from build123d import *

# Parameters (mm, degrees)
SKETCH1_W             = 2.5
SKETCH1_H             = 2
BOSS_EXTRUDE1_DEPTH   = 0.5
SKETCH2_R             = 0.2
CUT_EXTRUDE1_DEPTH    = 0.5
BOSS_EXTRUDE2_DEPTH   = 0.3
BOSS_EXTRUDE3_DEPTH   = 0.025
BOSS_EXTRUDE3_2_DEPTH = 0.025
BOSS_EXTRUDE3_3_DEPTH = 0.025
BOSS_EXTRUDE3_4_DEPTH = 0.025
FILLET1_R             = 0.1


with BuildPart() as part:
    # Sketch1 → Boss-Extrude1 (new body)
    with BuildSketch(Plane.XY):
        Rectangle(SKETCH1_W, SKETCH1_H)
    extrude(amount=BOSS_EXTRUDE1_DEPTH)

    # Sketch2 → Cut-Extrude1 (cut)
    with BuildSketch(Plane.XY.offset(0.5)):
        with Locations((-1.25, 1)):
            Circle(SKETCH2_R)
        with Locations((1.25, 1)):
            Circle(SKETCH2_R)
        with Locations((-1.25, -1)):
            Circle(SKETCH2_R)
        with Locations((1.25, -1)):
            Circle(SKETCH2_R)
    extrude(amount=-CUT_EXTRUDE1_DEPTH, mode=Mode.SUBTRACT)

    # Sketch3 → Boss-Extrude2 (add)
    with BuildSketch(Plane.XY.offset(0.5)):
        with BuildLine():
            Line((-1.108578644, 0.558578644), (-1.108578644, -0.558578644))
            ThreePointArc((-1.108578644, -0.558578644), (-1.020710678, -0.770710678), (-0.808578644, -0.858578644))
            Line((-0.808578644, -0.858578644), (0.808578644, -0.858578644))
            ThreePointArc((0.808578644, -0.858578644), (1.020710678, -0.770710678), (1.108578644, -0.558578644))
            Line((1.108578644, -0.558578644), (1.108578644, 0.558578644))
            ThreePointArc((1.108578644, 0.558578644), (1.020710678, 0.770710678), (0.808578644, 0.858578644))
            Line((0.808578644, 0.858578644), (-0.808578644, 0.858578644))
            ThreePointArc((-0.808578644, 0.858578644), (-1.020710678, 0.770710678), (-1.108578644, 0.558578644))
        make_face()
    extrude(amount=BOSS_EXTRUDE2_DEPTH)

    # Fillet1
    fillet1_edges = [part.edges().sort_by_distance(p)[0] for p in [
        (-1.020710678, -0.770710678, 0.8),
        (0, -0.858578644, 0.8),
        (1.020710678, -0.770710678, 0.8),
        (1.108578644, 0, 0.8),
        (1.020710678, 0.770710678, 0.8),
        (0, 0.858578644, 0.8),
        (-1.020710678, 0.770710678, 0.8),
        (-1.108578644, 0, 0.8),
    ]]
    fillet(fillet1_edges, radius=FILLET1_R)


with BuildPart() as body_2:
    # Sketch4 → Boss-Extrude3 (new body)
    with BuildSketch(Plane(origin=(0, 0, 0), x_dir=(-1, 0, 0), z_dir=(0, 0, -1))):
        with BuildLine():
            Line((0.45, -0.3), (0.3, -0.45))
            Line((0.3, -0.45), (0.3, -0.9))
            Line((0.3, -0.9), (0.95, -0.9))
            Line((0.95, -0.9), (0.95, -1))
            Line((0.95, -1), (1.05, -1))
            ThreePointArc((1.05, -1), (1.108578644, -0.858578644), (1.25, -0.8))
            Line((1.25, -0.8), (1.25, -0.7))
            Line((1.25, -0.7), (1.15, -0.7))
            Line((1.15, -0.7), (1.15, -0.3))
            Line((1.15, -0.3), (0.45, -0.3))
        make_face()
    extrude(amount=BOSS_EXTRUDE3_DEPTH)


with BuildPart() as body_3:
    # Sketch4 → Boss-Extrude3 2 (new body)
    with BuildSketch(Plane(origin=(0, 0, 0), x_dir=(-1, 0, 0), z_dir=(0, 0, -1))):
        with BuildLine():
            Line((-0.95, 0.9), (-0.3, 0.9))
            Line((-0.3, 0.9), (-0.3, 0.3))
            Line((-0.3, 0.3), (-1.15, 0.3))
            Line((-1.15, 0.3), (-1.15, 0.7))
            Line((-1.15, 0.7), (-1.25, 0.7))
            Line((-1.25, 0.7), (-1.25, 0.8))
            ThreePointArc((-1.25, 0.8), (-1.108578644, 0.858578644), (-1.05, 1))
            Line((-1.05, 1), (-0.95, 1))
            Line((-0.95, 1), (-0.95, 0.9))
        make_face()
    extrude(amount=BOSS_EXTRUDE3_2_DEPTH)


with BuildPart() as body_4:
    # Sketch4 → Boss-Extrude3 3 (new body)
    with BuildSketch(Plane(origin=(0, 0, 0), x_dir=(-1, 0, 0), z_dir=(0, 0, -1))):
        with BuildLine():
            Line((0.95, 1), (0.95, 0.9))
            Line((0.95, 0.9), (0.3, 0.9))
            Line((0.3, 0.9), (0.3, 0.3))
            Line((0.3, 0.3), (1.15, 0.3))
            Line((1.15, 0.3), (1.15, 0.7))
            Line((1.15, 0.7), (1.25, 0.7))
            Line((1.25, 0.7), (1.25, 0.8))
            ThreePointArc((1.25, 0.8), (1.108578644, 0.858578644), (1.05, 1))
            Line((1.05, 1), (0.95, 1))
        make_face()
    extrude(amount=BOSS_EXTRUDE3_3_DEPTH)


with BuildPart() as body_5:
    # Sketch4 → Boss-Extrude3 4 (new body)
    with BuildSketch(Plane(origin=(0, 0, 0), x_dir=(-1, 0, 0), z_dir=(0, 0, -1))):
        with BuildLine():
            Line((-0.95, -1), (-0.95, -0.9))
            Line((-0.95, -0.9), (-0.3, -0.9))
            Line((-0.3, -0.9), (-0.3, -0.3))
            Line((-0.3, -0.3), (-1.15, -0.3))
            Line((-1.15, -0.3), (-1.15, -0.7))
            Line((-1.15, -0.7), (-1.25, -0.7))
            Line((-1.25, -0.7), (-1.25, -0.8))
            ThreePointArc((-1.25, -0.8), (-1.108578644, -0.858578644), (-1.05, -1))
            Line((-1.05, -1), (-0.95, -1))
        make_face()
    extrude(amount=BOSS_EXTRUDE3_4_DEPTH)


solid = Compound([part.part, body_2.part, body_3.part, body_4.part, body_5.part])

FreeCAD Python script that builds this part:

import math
import FreeCAD as App
import Part
import Sketcher

V = App.Vector
Q = App.Units.Quantity


def edges_at(feature, points):
    """Names of the edges that pass closest to the given points."""
    edges = feature.Shape.Edges
    near = lambda p: min(range(len(edges)), key=lambda i: edges[i].distToShape(Part.Vertex(*p))[0])
    return sorted({f"Edge{near(p) + 1}" for p in points})

doc = App.newDocument("Part")
body = doc.addObject("PartDesign::Body", "Body")

# Sketch on XY plane
sketch1 = body.newObject("Sketcher::SketchObject", "Sketch")
sketch1.AttachmentSupport = (doc.getObject("XY_Plane"), [""])
sketch1.MapMode = "FlatFace"
sketch1.addGeometry([
    Part.LineSegment(V(-1.2, 1, 0), V(-1.2, -1, 0)),
    Part.LineSegment(V(-1.2, -1, 0), V(1.2, -1, 0)),
    Part.LineSegment(V(1.2, -1, 0), V(1.2, 1, 0)),
    Part.LineSegment(V(1.2, 1, 0), V(-1.2, 1, 0)),
], False)
sketch1.addConstraint([
    Sketcher.Constraint("Coincident", 0, 2, 1, 1),
    Sketcher.Constraint("Coincident", 1, 2, 2, 1),
    Sketcher.Constraint("Coincident", 2, 2, 3, 1),
    Sketcher.Constraint("Coincident", 3, 2, 0, 1),
    Sketcher.Constraint("Vertical", 0),
    Sketcher.Constraint("Horizontal", 1),
    Sketcher.Constraint("Vertical", 2),
    Sketcher.Constraint("Horizontal", 3),
    Sketcher.Constraint("Symmetric", 0, 2, 2, 2, -1, 1),
    Sketcher.Constraint("DistanceY", 0, 2, 0, 1, Q("2 mm")),
    Sketcher.Constraint("DistanceX", 1, 1, 1, 2, Q("2.5 mm")),
])
pad1 = body.newObject("PartDesign::Pad", "Pad")
pad1.Profile = sketch1
pad1.Length = 0.5

# Sketch on XY plane
sketch2 = body.newObject("Sketcher::SketchObject", "Sketch001")
sketch2.AttachmentSupport = (doc.getObject("XY_Plane"), [""])
sketch2.MapMode = "FlatFace"
sketch2.AttachmentOffset = App.Placement(V(0, 0, 0.5), App.Rotation())
sketch2.addGeometry([
    Part.Circle(V(-1.25, 1, 0), V(0, 0, 1), 0.2),
    Part.Circle(V(1.25, 1, 0), V(0, 0, 1), 0.2),
    Part.Circle(V(-1.25, -1, 0), V(0, 0, 1), 0.2),
    Part.Circle(V(1.25, -1, 0), V(0, 0, 1), 0.2),
], False)
sketch2.addConstraint([
    Sketcher.Constraint("Equal", 0, 1),
    Sketcher.Constraint("Equal", 1, 2),
    Sketcher.Constraint("Equal", 2, 3),
    Sketcher.Constraint("Symmetric", 1, 3, 2, 3, -1, 1),
    Sketcher.Constraint("Symmetric", 0, 3, 3, 3, -1, 1),
    Sketcher.Constraint("Symmetric", 0, 3, 1, 3, -2),
    Sketcher.Constraint("Diameter", 0, Q("0.4 mm")),
    Sketcher.Constraint("DistanceY", -1, 1, 0, 3, Q("1 mm")),
    Sketcher.Constraint("DistanceX", 0, 3, 1, 3, Q("2.5 mm")),
])
pocket1 = body.newObject("PartDesign::Pocket", "Pocket")
pocket1.Profile = sketch2
pocket1.Length = 0.5

# Sketch on XY plane
sketch3 = body.newObject("Sketcher::SketchObject", "Sketch002")
sketch3.AttachmentSupport = (doc.getObject("XY_Plane"), [""])
sketch3.MapMode = "FlatFace"
sketch3.AttachmentOffset = App.Placement(V(0, 0, 0.5), App.Rotation())
sketch3.addGeometry([
    Part.LineSegment(V(-1.11, 0.56, 0), V(-1.11, -0.56, 0)),  # 0
    Part.ArcOfCircle(Part.Circle(V(-0.81, -0.56, 0), V(0, 0, 1), 0.3), math.radians(-180), math.radians(-90)),  # 1
    Part.LineSegment(V(-0.81, -0.86, 0), V(0.81, -0.86, 0)),  # 2
    Part.ArcOfCircle(Part.Circle(V(0.81, -0.56, 0), V(0, 0, 1), 0.3), math.radians(-90), math.radians(0)),  # 3
    Part.LineSegment(V(1.11, -0.56, 0), V(1.11, 0.56, 0)),  # 4
    Part.ArcOfCircle(Part.Circle(V(0.81, 0.56, 0), V(0, 0, 1), 0.3), math.radians(0), math.radians(90)),  # 5
    Part.LineSegment(V(0.81, 0.86, 0), V(-0.81, 0.86, 0)),  # 6
    Part.ArcOfCircle(Part.Circle(V(-0.81, 0.56, 0), V(0, 0, 1), 0.3), math.radians(90), math.radians(180)),  # 7
], False)
sketch3.addConstraint([
    Sketcher.Constraint("Tangent", 0, 2, 1, 1),
    Sketcher.Constraint("Tangent", 1, 2, 2, 1),
    Sketcher.Constraint("Tangent", 2, 2, 3, 1),
    Sketcher.Constraint("Tangent", 3, 2, 4, 1),
    Sketcher.Constraint("Tangent", 4, 2, 5, 1),
    Sketcher.Constraint("Tangent", 5, 2, 6, 1),
    Sketcher.Constraint("Tangent", 6, 2, 7, 1),
    Sketcher.Constraint("Tangent", 7, 2, 0, 1),
    Sketcher.Constraint("Vertical", 0),
    Sketcher.Constraint("Horizontal", 2),
    Sketcher.Constraint("Vertical", 4),
    Sketcher.Constraint("Horizontal", 6),
    Sketcher.Constraint("Equal", 1, 3),
    Sketcher.Constraint("Equal", 3, 5),
    Sketcher.Constraint("Equal", 5, 7),
    Sketcher.Constraint("Symmetric", 1, 3, 5, 3, -1, 1),
    Sketcher.Constraint("Radius", 1, Q("0.3 mm")),
    Sketcher.Constraint("DistanceX", 2, 1, 2, 2, Q("1.617157 mm")),
    Sketcher.Constraint("DistanceY", 0, 2, 0, 1, Q("1.117157 mm")),
])
pad2 = body.newObject("PartDesign::Pad", "Pad001")
pad2.Profile = sketch3
pad2.Length = 0.3
doc.recompute()

fillet = body.newObject("PartDesign::Fillet", "Fillet")
fillet.Base = (pad2, edges_at(pad2, [
    (-1.021, -0.771, 0.8),
    (0, -0.859, 0.8),
    (1.021, -0.771, 0.8),
    (1.109, 0, 0.8),
    (1.021, 0.771, 0.8),
    (0, 0.859, 0.8),
    (-1.021, 0.771, 0.8),
    (-1.109, 0, 0.8),
]))
fillet.Radius = 0.1
body2 = doc.addObject("PartDesign::Body", "Body001")

# Sketch on XY plane
sketch4 = body2.newObject("Sketcher::SketchObject", "Sketch003")
sketch4.AttachmentSupport = (doc.getObject("XY_Plane001"), [""])
sketch4.MapMode = "FlatFace"
sketch4.addGeometry([
    Part.LineSegment(V(-0.45, -0.3, 0), V(-0.3, -0.45, 0)),  # 0
    Part.LineSegment(V(-0.3, -0.45, 0), V(-0.3, -0.9, 0)),  # 1
    Part.LineSegment(V(-0.3, -0.9, 0), V(-0.95, -0.9, 0)),  # 2
    Part.LineSegment(V(-0.95, -0.9, 0), V(-0.95, -1, 0)),  # 3
    Part.LineSegment(V(-0.95, -1, 0), V(-1.05, -1, 0)),  # 4
    Part.ArcOfCircle(Part.Circle(V(-1.25, -1, 0), V(0, 0, 1), 0.2), math.radians(0), math.radians(90)),  # 5
    Part.LineSegment(V(-1.25, -0.8, 0), V(-1.25, -0.7, 0)),  # 6
    Part.LineSegment(V(-1.25, -0.7, 0), V(-1.15, -0.7, 0)),  # 7
    Part.LineSegment(V(-1.15, -0.7, 0), V(-1.15, -0.3, 0)),  # 8
    Part.LineSegment(V(-1.15, -0.3, 0), V(-0.45, -0.3, 0)),  # 9
], False)
sketch4.addConstraint([
    Sketcher.Constraint("Coincident", 0, 2, 1, 1),
    Sketcher.Constraint("Coincident", 1, 2, 2, 1),
    Sketcher.Constraint("Coincident", 2, 2, 3, 1),
    Sketcher.Constraint("Coincident", 3, 2, 4, 1),
    Sketcher.Constraint("Coincident", 4, 2, 5, 1),
    Sketcher.Constraint("Coincident", 5, 2, 6, 1),
    Sketcher.Constraint("Coincident", 6, 2, 7, 1),
    Sketcher.Constraint("Coincident", 7, 2, 8, 1),
    Sketcher.Constraint("Coincident", 8, 2, 9, 1),
    Sketcher.Constraint("Coincident", 9, 2, 0, 1),
    Sketcher.Constraint("Vertical", 1),
    Sketcher.Constraint("Horizontal", 2),
    Sketcher.Constraint("Vertical", 3),
    Sketcher.Constraint("Horizontal", 4),
    Sketcher.Constraint("Vertical", 6),
    Sketcher.Constraint("Horizontal", 7),
    Sketcher.Constraint("Vertical", 8),
    Sketcher.Constraint("Horizontal", 9),
    Sketcher.Constraint("Horizontal", 5, 3, 3, 2),
    Sketcher.Constraint("Equal", 4, 7),
    Sketcher.Constraint("Equal", 7, 3),
    Sketcher.Constraint("Equal", 3, 6),
    Sketcher.Constraint("Radius", 5, Q("0.2 mm")),
    Sketcher.Constraint("Angle", 0, Q("-45 deg")),
    Sketcher.Constraint("DistanceX", 4, 2, 4, 1, Q("0.1 mm")),
    Sketcher.Constraint("DistanceX", 9, 1, 9, 2, Q("0.7 mm")),
    Sketcher.Constraint("DistanceY", 8, 1, 8, 2, Q("0.4 mm")),
    Sketcher.Constraint("DistanceY", 5, 3, -1, 1, Q("1 mm")),
    Sketcher.Constraint("DistanceX", 2, 2, 2, 1, Q("0.65 mm")),
    Sketcher.Constraint("DistanceY", 1, 2, 1, 1, Q("0.45 mm")),
    Sketcher.Constraint("DistanceX", 0, 2, -1, 1, Q("0.3 mm")),
])
pad3 = body2.newObject("PartDesign::Pad", "Pad002")
pad3.Profile = sketch4
pad3.Length = 0.025
pad3.Reversed = True
body3 = doc.addObject("PartDesign::Body", "Body002")

# Sketch on XY plane
sketch5 = body3.newObject("Sketcher::SketchObject", "Sketch004")
sketch5.AttachmentSupport = (doc.getObject("XY_Plane002"), [""])
sketch5.MapMode = "FlatFace"
sketch5.addGeometry([
    Part.LineSegment(V(0.3, 0.9, 0), V(0.95, 0.9, 0)),  # 0
    Part.LineSegment(V(0.95, 0.9, 0), V(0.95, 1, 0)),  # 1
    Part.LineSegment(V(0.95, 1, 0), V(1.05, 1, 0)),  # 2
    Part.ArcOfCircle(Part.Circle(V(1.25, 1, 0), V(0, 0, 1), 0.2), math.radians(-180), math.radians(-90)),  # 3
    Part.LineSegment(V(1.25, 0.8, 0), V(1.25, 0.7, 0)),  # 4
    Part.LineSegment(V(1.25, 0.7, 0), V(1.15, 0.7, 0)),  # 5
    Part.LineSegment(V(1.15, 0.7, 0), V(1.15, 0.3, 0)),  # 6
    Part.LineSegment(V(1.15, 0.3, 0), V(0.3, 0.3, 0)),  # 7
    Part.LineSegment(V(0.3, 0.3, 0), V(0.3, 0.9, 0)),  # 8
], False)
sketch5.addConstraint([
    Sketcher.Constraint("Coincident", 0, 2, 1, 1),
    Sketcher.Constraint("Coincident", 1, 2, 2, 1),
    Sketcher.Constraint("Coincident", 2, 2, 3, 1),
    Sketcher.Constraint("Coincident", 3, 2, 4, 1),
    Sketcher.Constraint("Coincident", 4, 2, 5, 1),
    Sketcher.Constraint("Coincident", 5, 2, 6, 1),
    Sketcher.Constraint("Coincident", 6, 2, 7, 1),
    Sketcher.Constraint("Coincident", 7, 2, 8, 1),
    Sketcher.Constraint("Coincident", 8, 2, 0, 1),
    Sketcher.Constraint("Horizontal", 0),
    Sketcher.Constraint("Vertical", 1),
    Sketcher.Constraint("Horizontal", 2),
    Sketcher.Constraint("Vertical", 4),
    Sketcher.Constraint("Horizontal", 5),
    Sketcher.Constraint("Vertical", 6),
    Sketcher.Constraint("Horizontal", 7),
    Sketcher.Constraint("Vertical", 8),
    Sketcher.Constraint("Horizontal", 3, 3, 1, 2),
    Sketcher.Constraint("Equal", 2, 5),
    Sketcher.Constraint("Equal", 5, 1),
    Sketcher.Constraint("Equal", 1, 4),
    Sketcher.Constraint("Radius", 3, Q("0.2 mm")),
    Sketcher.Constraint("DistanceX", 2, 1, 2, 2, Q("0.1 mm")),
    Sketcher.Constraint("DistanceY", 6, 2, 6, 1, Q("0.4 mm")),
    Sketcher.Constraint("DistanceY", -1, 1, 3, 3, Q("1 mm")),
    Sketcher.Constraint("DistanceX", 0, 1, 0, 2, Q("0.65 mm")),
    Sketcher.Constraint("DistanceX", 7, 2, 7, 1, Q("0.85 mm")),
    Sketcher.Constraint("DistanceX", -1, 1, 7, 2, Q("0.3 mm")),
])
pad4 = body3.newObject("PartDesign::Pad", "Pad003")
pad4.Profile = sketch5
pad4.Length = 0.025
pad4.Reversed = True
body4 = doc.addObject("PartDesign::Body", "Body003")

# Sketch on XY plane
sketch6 = body4.newObject("Sketcher::SketchObject", "Sketch005")
sketch6.AttachmentSupport = (doc.getObject("XY_Plane003"), [""])
sketch6.MapMode = "FlatFace"
sketch6.addGeometry([
    Part.LineSegment(V(-0.95, 1, 0), V(-0.95, 0.9, 0)),  # 0
    Part.LineSegment(V(-0.95, 0.9, 0), V(-0.3, 0.9, 0)),  # 1
    Part.LineSegment(V(-0.3, 0.9, 0), V(-0.3, 0.3, 0)),  # 2
    Part.LineSegment(V(-0.3, 0.3, 0), V(-1.15, 0.3, 0)),  # 3
    Part.LineSegment(V(-1.15, 0.3, 0), V(-1.15, 0.7, 0)),  # 4
    Part.LineSegment(V(-1.15, 0.7, 0), V(-1.25, 0.7, 0)),  # 5
    Part.LineSegment(V(-1.25, 0.7, 0), V(-1.25, 0.8, 0)),  # 6
    Part.ArcOfCircle(Part.Circle(V(-1.25, 1, 0), V(0, 0, 1), 0.2), math.radians(-90), math.radians(0)),  # 7
    Part.LineSegment(V(-1.05, 1, 0), V(-0.95, 1, 0)),  # 8
], False)
sketch6.addConstraint([
    Sketcher.Constraint("Coincident", 0, 2, 1, 1),
    Sketcher.Constraint("Coincident", 1, 2, 2, 1),
    Sketcher.Constraint("Coincident", 2, 2, 3, 1),
    Sketcher.Constraint("Coincident", 3, 2, 4, 1),
    Sketcher.Constraint("Coincident", 4, 2, 5, 1),
    Sketcher.Constraint("Coincident", 5, 2, 6, 1),
    Sketcher.Constraint("Coincident", 6, 2, 7, 1),
    Sketcher.Constraint("Coincident", 7, 2, 8, 1),
    Sketcher.Constraint("Coincident", 8, 2, 0, 1),
    Sketcher.Constraint("Vertical", 0),
    Sketcher.Constraint("Horizontal", 1),
    Sketcher.Constraint("Vertical", 2),
    Sketcher.Constraint("Horizontal", 3),
    Sketcher.Constraint("Vertical", 4),
    Sketcher.Constraint("Horizontal", 5),
    Sketcher.Constraint("Vertical", 6),
    Sketcher.Constraint("Horizontal", 8),
    Sketcher.Constraint("Vertical", 7, 3, 5, 2),
    Sketcher.Constraint("Equal", 5, 8),
    Sketcher.Constraint("Equal", 8, 0),
    Sketcher.Constraint("Equal", 0, 6),
    Sketcher.Constraint("Radius", 7, Q("0.2 mm")),
    Sketcher.Constraint("DistanceX", 5, 2, 5, 1, Q("0.1 mm")),
    Sketcher.Constraint("DistanceY", 2, 2, 2, 1, Q("0.6 mm")),
    Sketcher.Constraint("DistanceY", 4, 1, 4, 2, Q("0.4 mm")),
    Sketcher.Constraint("DistanceY", -1, 1, 7, 3, Q("1 mm")),
    Sketcher.Constraint("DistanceX", 1, 1, 1, 2, Q("0.65 mm")),
    Sketcher.Constraint("DistanceX", 1, 2, -1, 1, Q("0.3 mm")),
])
pad5 = body4.newObject("PartDesign::Pad", "Pad004")
pad5.Profile = sketch6
pad5.Length = 0.025
pad5.Reversed = True
body5 = doc.addObject("PartDesign::Body", "Body004")

# Sketch on XY plane
sketch7 = body5.newObject("Sketcher::SketchObject", "Sketch006")
sketch7.AttachmentSupport = (doc.getObject("XY_Plane004"), [""])
sketch7.MapMode = "FlatFace"
sketch7.addGeometry([
    Part.LineSegment(V(0.95, -1, 0), V(0.95, -0.9, 0)),  # 0
    Part.LineSegment(V(0.95, -0.9, 0), V(0.3, -0.9, 0)),  # 1
    Part.LineSegment(V(0.3, -0.9, 0), V(0.3, -0.3, 0)),  # 2
    Part.LineSegment(V(0.3, -0.3, 0), V(1.15, -0.3, 0)),  # 3
    Part.LineSegment(V(1.15, -0.3, 0), V(1.15, -0.7, 0)),  # 4
    Part.LineSegment(V(1.15, -0.7, 0), V(1.25, -0.7, 0)),  # 5
    Part.LineSegment(V(1.25, -0.7, 0), V(1.25, -0.8, 0)),  # 6
    Part.ArcOfCircle(Part.Circle(V(1.25, -1, 0), V(0, 0, 1), 0.2), math.radians(90), math.radians(180)),  # 7
    Part.LineSegment(V(1.05, -1, 0), V(0.95, -1, 0)),  # 8
], False)
sketch7.addConstraint([
    Sketcher.Constraint("Coincident", 0, 2, 1, 1),
    Sketcher.Constraint("Coincident", 1, 2, 2, 1),
    Sketcher.Constraint("Coincident", 2, 2, 3, 1),
    Sketcher.Constraint("Coincident", 3, 2, 4, 1),
    Sketcher.Constraint("Coincident", 4, 2, 5, 1),
    Sketcher.Constraint("Coincident", 5, 2, 6, 1),
    Sketcher.Constraint("Coincident", 6, 2, 7, 1),
    Sketcher.Constraint("Coincident", 7, 2, 8, 1),
    Sketcher.Constraint("Coincident", 8, 2, 0, 1),
    Sketcher.Constraint("Vertical", 0),
    Sketcher.Constraint("Horizontal", 1),
    Sketcher.Constraint("Vertical", 2),
    Sketcher.Constraint("Horizontal", 3),
    Sketcher.Constraint("Vertical", 4),
    Sketcher.Constraint("Horizontal", 5),
    Sketcher.Constraint("Vertical", 6),
    Sketcher.Constraint("Horizontal", 8),
    Sketcher.Constraint("Vertical", 7, 3, 5, 2),
    Sketcher.Constraint("Equal", 5, 8),
    Sketcher.Constraint("Equal", 8, 0),
    Sketcher.Constraint("Equal", 0, 6),
    Sketcher.Constraint("Radius", 7, Q("0.2 mm")),
    Sketcher.Constraint("DistanceX", 5, 1, 5, 2, Q("0.1 mm")),
    Sketcher.Constraint("DistanceY", 2, 1, 2, 2, Q("0.6 mm")),
    Sketcher.Constraint("DistanceY", 4, 2, 4, 1, Q("0.4 mm")),
    Sketcher.Constraint("DistanceY", 7, 3, -1, 1, Q("1 mm")),
    Sketcher.Constraint("DistanceX", 1, 2, 1, 1, Q("0.65 mm")),
    Sketcher.Constraint("DistanceX", -1, 1, 1, 2, Q("0.3 mm")),
])
pad6 = body5.newObject("PartDesign::Pad", "Pad005")
pad6.Profile = sketch7
pad6.Length = 0.025
pad6.Reversed = True

doc.recompute()
